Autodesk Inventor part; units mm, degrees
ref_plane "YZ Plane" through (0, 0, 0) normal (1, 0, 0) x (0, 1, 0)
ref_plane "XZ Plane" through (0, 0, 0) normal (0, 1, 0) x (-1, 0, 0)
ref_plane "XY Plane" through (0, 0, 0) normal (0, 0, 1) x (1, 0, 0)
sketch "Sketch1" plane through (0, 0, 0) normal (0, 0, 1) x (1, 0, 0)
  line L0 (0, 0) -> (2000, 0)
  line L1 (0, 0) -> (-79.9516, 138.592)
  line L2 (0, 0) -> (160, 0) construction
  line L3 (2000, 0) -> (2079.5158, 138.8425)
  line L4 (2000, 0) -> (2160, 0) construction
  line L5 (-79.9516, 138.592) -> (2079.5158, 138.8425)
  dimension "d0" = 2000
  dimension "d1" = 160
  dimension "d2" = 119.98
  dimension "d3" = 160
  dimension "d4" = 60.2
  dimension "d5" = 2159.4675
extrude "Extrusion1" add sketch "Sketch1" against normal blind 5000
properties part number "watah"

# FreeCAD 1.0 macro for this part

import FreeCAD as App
import Part
import Sketcher

V = App.Vector
Q = App.Units.Quantity


def add_polygon(sketch, points):
    """Adds a closed chain of lines whose ends are joined by coincident constraints."""
    first, n = sketch.GeometryCount, len(points)
    for a, b in zip(points, points[1:] + points[:1]):
        sketch.addGeometry(Part.LineSegment(App.Vector(*a, 0), App.Vector(*b, 0)), False)
    for i in range(n):
        sketch.addConstraint(Sketcher.Constraint("Coincident", first + i, 2, first + (i + 1) % n, 1))

doc = App.newDocument("Part")
body = doc.addObject("PartDesign::Body", "Body")

# Sketch on XY plane
sketch1 = body.newObject("Sketcher::SketchObject", "Sketch")
sketch1.AttachmentSupport = (doc.getObject("XY_Plane"), [""])
sketch1.MapMode = "FlatFace"
add_polygon(sketch1, [(-79.9516, 138.592), (0, 0), (2000, 0), (2079.5158, 138.8425)])  # lines 0-3
sketch1.addConstraint([
    Sketcher.Constraint("Horizontal", 1),
    Sketcher.Constraint("Coincident", 0, 2, -1, 1),
    Sketcher.Constraint("Equal", 0, 2),
    Sketcher.Constraint("DistanceX", 1, 1, 1, 2, Q("2000 mm")),
    Sketcher.Constraint("Distance", 0, Q("160 mm")),
    Sketcher.Constraint("Angle", 2, Q("60.2 deg")),
    Sketcher.Constraint("Distance", 3, Q("2159.4674 mm")),
])
pad1 = body.newObject("PartDesign::Pad", "Pad")
pad1.Profile = sketch1
pad1.Length = 5000
pad1.Reversed = True

doc.recompute()
